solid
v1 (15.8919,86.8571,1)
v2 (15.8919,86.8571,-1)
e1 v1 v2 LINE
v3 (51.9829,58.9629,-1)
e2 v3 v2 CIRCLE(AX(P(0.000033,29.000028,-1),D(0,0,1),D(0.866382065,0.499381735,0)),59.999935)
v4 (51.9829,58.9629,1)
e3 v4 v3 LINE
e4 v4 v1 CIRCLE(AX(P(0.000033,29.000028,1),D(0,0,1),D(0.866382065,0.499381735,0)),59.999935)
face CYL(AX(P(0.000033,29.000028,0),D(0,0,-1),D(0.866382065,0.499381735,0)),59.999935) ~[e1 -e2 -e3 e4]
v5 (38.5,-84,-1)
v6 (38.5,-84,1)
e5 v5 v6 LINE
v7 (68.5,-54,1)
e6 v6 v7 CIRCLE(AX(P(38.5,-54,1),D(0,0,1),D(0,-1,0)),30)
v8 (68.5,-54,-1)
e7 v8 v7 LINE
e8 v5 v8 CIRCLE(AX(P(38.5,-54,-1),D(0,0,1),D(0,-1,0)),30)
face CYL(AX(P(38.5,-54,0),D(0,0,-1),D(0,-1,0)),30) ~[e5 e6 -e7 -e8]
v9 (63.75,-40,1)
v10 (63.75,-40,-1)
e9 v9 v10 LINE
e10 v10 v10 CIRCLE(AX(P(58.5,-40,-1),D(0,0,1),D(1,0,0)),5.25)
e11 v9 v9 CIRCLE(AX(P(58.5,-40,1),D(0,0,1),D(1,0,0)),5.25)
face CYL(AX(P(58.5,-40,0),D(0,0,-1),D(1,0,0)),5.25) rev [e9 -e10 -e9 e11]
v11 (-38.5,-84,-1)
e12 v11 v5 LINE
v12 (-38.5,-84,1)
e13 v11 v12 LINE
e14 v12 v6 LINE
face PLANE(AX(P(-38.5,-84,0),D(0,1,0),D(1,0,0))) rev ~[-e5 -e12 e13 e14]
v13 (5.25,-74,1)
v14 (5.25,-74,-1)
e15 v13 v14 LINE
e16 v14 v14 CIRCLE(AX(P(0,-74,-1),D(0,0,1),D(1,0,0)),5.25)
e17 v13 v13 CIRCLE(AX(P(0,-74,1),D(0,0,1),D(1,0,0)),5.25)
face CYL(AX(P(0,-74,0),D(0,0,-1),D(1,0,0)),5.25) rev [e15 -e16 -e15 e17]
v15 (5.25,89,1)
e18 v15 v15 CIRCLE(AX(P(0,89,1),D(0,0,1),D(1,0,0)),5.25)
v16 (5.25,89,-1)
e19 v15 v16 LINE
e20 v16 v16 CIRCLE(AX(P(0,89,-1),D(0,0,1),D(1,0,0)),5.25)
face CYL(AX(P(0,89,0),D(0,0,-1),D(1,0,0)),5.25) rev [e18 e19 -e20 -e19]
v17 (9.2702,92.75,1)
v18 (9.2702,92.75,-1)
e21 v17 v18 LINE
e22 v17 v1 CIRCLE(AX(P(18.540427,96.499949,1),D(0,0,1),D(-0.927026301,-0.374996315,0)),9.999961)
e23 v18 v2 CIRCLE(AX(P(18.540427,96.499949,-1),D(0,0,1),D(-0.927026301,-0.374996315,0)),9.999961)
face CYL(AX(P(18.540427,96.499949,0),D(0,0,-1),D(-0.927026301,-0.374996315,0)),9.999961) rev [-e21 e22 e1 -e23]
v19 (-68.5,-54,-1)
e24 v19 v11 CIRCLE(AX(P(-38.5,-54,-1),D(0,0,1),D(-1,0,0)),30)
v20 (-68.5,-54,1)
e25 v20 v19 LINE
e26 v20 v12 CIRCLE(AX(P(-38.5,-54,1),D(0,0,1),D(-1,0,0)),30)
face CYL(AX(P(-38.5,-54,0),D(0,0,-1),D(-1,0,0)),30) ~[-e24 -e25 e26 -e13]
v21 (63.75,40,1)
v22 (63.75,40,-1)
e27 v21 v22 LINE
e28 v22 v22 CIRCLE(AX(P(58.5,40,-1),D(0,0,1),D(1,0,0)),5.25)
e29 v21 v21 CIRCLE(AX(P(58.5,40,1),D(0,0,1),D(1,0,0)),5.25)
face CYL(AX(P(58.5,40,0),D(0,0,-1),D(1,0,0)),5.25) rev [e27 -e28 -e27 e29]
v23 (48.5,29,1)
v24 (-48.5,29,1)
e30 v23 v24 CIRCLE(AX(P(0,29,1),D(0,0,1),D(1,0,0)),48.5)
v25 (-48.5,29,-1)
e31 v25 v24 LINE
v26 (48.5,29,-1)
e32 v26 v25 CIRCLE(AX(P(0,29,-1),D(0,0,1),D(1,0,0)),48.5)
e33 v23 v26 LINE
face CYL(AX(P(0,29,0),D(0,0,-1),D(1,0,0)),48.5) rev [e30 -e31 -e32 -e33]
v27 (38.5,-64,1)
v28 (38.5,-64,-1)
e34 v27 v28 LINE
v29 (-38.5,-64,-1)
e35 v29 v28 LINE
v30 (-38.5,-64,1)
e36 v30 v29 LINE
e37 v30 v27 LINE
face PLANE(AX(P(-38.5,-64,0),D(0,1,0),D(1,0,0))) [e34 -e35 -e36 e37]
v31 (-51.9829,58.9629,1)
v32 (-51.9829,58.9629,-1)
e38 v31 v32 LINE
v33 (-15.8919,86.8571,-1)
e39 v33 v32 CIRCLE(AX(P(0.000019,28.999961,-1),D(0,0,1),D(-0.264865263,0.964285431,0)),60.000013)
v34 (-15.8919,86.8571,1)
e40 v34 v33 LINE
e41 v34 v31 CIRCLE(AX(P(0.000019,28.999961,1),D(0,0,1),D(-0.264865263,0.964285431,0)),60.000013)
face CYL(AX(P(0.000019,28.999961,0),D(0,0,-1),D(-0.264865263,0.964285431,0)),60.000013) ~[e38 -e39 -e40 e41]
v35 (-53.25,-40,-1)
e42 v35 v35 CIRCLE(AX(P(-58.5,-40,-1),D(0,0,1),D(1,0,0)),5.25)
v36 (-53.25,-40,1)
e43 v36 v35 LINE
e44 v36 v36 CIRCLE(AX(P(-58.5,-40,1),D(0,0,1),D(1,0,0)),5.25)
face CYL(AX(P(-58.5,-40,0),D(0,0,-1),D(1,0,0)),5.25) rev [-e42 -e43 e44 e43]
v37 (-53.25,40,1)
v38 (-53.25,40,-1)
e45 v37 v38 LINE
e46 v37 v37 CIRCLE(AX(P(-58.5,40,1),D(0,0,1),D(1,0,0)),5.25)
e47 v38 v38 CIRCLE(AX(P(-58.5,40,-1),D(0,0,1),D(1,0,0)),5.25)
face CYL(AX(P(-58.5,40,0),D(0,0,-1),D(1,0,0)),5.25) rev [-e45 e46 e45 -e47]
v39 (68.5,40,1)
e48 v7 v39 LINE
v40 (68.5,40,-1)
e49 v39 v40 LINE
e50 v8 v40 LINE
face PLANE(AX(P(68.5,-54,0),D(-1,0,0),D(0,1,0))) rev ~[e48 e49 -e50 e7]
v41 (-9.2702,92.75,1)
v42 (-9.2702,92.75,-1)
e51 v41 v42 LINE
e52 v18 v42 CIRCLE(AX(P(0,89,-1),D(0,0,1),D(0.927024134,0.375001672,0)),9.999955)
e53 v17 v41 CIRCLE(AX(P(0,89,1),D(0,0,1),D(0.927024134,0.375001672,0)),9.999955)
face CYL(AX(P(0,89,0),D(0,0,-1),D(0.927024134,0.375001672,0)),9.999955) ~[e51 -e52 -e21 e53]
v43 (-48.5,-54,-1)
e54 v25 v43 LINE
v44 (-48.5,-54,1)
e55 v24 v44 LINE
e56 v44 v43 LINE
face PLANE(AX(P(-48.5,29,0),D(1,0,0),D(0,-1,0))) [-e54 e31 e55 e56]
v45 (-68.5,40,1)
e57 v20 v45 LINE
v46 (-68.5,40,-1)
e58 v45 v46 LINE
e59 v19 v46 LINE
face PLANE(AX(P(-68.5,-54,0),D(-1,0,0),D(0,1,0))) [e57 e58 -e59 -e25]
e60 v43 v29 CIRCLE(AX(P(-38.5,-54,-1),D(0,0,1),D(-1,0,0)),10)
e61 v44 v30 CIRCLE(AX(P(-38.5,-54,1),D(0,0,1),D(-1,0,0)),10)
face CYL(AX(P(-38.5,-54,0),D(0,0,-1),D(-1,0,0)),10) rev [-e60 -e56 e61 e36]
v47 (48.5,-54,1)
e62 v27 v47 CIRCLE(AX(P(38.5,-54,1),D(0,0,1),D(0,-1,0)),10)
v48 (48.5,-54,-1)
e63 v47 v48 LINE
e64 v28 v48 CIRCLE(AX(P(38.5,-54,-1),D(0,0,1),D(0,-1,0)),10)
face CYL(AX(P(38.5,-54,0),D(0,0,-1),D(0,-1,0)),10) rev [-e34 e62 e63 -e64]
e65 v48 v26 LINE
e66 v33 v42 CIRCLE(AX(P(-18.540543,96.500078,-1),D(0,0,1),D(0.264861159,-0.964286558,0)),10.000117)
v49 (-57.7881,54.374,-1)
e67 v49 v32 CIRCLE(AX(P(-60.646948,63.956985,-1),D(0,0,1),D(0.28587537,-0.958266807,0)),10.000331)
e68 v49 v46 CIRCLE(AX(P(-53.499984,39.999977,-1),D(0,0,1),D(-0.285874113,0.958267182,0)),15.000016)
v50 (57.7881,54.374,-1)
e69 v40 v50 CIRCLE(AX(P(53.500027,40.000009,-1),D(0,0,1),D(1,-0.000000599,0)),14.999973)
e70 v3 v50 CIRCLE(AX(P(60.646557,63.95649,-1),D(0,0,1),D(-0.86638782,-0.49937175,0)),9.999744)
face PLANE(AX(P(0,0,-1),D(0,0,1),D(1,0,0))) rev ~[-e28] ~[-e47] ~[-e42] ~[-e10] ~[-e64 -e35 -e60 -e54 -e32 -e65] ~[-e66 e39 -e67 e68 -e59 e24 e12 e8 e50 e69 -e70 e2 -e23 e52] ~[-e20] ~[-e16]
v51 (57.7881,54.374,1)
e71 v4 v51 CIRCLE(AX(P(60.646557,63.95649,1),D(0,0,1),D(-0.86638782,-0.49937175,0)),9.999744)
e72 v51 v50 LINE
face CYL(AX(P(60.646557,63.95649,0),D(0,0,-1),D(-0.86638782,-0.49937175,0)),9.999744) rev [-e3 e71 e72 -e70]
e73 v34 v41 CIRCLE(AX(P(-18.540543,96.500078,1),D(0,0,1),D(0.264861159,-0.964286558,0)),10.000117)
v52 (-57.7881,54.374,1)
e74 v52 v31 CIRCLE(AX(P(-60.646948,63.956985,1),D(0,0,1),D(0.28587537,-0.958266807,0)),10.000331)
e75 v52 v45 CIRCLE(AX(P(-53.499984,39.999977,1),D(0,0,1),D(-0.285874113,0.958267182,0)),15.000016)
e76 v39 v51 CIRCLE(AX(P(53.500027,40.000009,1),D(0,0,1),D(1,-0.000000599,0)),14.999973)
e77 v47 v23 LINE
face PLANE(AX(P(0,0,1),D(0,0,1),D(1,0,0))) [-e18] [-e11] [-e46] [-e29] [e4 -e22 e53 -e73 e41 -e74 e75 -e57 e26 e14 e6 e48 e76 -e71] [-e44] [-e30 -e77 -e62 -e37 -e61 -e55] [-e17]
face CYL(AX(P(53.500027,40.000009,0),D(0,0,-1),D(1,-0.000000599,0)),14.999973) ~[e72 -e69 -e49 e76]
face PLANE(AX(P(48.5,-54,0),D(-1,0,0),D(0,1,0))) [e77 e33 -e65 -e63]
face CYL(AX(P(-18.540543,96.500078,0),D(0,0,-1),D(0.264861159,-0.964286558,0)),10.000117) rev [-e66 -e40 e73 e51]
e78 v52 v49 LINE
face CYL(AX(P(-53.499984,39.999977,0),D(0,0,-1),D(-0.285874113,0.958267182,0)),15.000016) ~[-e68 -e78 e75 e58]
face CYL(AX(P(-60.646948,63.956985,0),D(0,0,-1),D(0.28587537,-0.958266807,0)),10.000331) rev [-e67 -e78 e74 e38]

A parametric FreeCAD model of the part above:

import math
import FreeCAD as App
import Part
import Sketcher

V = App.Vector

doc = App.newDocument("Part")
body = doc.addObject("PartDesign::Body", "Body")

sketch1 = body.newObject("Sketcher::SketchObject", "Sketch")
sketch1.AttachmentSupport = (doc.getObject("XY_Plane"), [""])
sketch1.MapMode = "FlatFace"
sketch1.addGeometry([
    Part.ArcOfCircle(Part.Circle(V(-38, -54, 0), V(0, 0, 1), 30), math.radians(180), math.radians(270)),
    Part.LineSegment(V(-38, -84, 0), V(38, -84, 0)),
    Part.ArcOfCircle(Part.Circle(V(38, -54, 0), V(0, 0, 1), 30), math.radians(-90), math.radians(0)),
    Part.LineSegment(V(68, -54, 0), V(68, 40, 0)),
    Part.ArcOfCircle(Part.Circle(V(54, 40, 0), V(0, 0, 1), 15), math.radians(0), math.radians(73)),
    Part.ArcOfCircle(Part.Circle(V(61, 64, 0), V(0, 0, 1), 10), math.radians(-150), math.radians(-107)),
    Part.ArcOfCircle(Part.Circle(V(0, 29, 0), V(0, 0, 1), 60), math.radians(30), math.radians(75)),
    Part.ArcOfCircle(Part.Circle(V(19, 96, 0), V(0, 0, 1), 10), math.radians(-158), math.radians(-105)),
    Part.ArcOfCircle(Part.Circle(V(0, 89, 0), V(0, 0, 1), 10), math.radians(22), math.radians(158)),
    Part.ArcOfCircle(Part.Circle(V(-19, 96, 0), V(0, 0, 1), 10), math.radians(-75), math.radians(-22)),
    Part.ArcOfCircle(Part.Circle(V(0, 29, 0), V(0, 0, 1), 60), math.radians(105), math.radians(150)),
    Part.ArcOfCircle(Part.Circle(V(-61, 64, 0), V(0, 0, 1), 10), math.radians(-73), math.radians(-30)),
    Part.ArcOfCircle(Part.Circle(V(-54, 40, 0), V(0, 0, 1), 15), math.radians(107), math.radians(180)),
    Part.LineSegment(V(-68, 40, 0), V(-68, -54, 0)),
    Part.Circle(V(-58, -40, 0), V(0, 0, 1), 5),
    Part.Circle(V(0, -74, 0), V(0, 0, 1), 5),
    Part.LineSegment(V(-48, -54, 0), V(-48, 29, 0)),
    Part.ArcOfCircle(Part.Circle(V(0, 29, 0), V(0, 0, 1), 48), math.radians(0), math.radians(180)),
    Part.LineSegment(V(48, 29, 0), V(48, -54, 0)),
    Part.ArcOfCircle(Part.Circle(V(38, -54, 0), V(0, 0, 1), 10), math.radians(-90), math.radians(0)),
    Part.LineSegment(V(38, -64, 0), V(-38, -64, 0)),
    Part.ArcOfCircle(Part.Circle(V(-38, -54, 0), V(0, 0, 1), 10), math.radians(180), math.radians(270)),
    Part.Circle(V(58, -40, 0), V(0, 0, 1), 5),
    Part.Circle(V(-58, 40, 0), V(0, 0, 1), 5),
    Part.Circle(V(0, 89, 0), V(0, 0, 1), 5),
    Part.Circle(V(58, 40, 0), V(0, 0, 1), 5),
], False)
sketch1.addConstraint([
    Sketcher.Constraint("Tangent", 0, 2, 1, 1),
    Sketcher.Constraint("Tangent", 1, 2, 2, 1),
    Sketcher.Constraint("Tangent", 2, 2, 3, 1),
    Sketcher.Constraint("Tangent", 3, 2, 4, 1),
    Sketcher.Constraint("Tangent", 4, 2, 5, 2),
    Sketcher.Constraint("Tangent", 5, 1, 6, 1),
    Sketcher.Constraint("Tangent", 6, 2, 7, 2),
    Sketcher.Constraint("Tangent", 7, 1, 8, 1),
    Sketcher.Constraint("Tangent", 8, 2, 9, 2),
    Sketcher.Constraint("Tangent", 9, 1, 10, 1),
    Sketcher.Constraint("Tangent", 10, 2, 11, 2),
    Sketcher.Constraint("Tangent", 11, 1, 12, 1),
    Sketcher.Constraint("Tangent", 12, 2, 13, 1),
    Sketcher.Constraint("Tangent", 13, 2, 0, 1),
    Sketcher.Constraint("Tangent", 16, 2, 17, 2),
    Sketcher.Constraint("Tangent", 17, 1, 18, 1),
    Sketcher.Constraint("Tangent", 18, 2, 19, 2),
    Sketcher.Constraint("Tangent", 19, 1, 20, 1),
    Sketcher.Constraint("Tangent", 20, 2, 21, 2),
    Sketcher.Constraint("Tangent", 21, 1, 16, 1),
    Sketcher.Constraint("Horizontal", 1),
    Sketcher.Constraint("Vertical", 3),
    Sketcher.Constraint("Vertical", 13),
    Sketcher.Constraint("Vertical", 16),
    Sketcher.Constraint("Vertical", 18),
    Sketcher.Constraint("Horizontal", 20),
    Sketcher.Constraint("Coincident", 10, 3, 6, 3),
    Sketcher.Constraint("Coincident", 17, 3, 6, 3),
    Sketcher.Constraint("Coincident", 19, 3, 2, 3),
    Sketcher.Constraint("Coincident", 21, 3, 0, 3),
    Sketcher.Constraint("Coincident", 24, 3, 8, 3),
    Sketcher.Constraint("Equal", 0, 2),
    Sketcher.Constraint("Equal", 5, 7),
    Sketcher.Constraint("Equal", 7, 8),
    Sketcher.Constraint("Equal", 8, 9),
    Sketcher.Constraint("Equal", 6, 10),
    Sketcher.Constraint("Equal", 9, 11),
    Sketcher.Constraint("Equal", 4, 12),
    Sketcher.Constraint("Equal", 14, 15),
    Sketcher.Constraint("Equal", 11, 19),
    Sketcher.Constraint("Equal", 15, 22),
    Sketcher.Constraint("Equal", 22, 23),
    Sketcher.Constraint("Equal", 23, 24),
    Sketcher.Constraint("Equal", 24, 25),
    Sketcher.Constraint("Symmetric", 22, 3, 23, 3, -1, 1),
    Sketcher.Constraint("Symmetric", 14, 3, 25, 3, -1, 1),
    Sketcher.Constraint("Symmetric", 7, 3, 9, 3, -2),
    Sketcher.Constraint("Symmetric", 14, 3, 22, 3, -2),
    Sketcher.Constraint("PointOnObject", 15, 3, -2),
    Sketcher.Constraint("Horizontal", 5, 3, 11, 3),
    Sketcher.Constraint("Horizontal", 12, 3, 23, 3),
    Sketcher.Constraint("Radius", 0, 30.0),
    Sketcher.Constraint("Radius", 4, 15.0),
    Sketcher.Constraint("Radius", 5, 10.0),
    Sketcher.Constraint("Radius", 6, 60.0),
    Sketcher.Constraint("Diameter", 14, 10.5),
    Sketcher.Constraint("Radius", 17, 48.5),
    Sketcher.Constraint("DistanceY", -1, 1, 4, 3, 40.0),
    Sketcher.Constraint("DistanceY", -1, 1, 6, 3, 29.0),
    Sketcher.Constraint("DistanceY", 15, 3, -1, 1, 74.0),
    Sketcher.Constraint("DistanceY", 6, 3, 8, 3, 60.0),
    Sketcher.Constraint("DistanceX", 14, 3, 0, 3, 20.0),
    Sketcher.Constraint("DistanceY", 15, 3, 0, 3, 20.0),
])
pad1 = body.newObject("PartDesign::Pad", "Pad")
pad1.Profile = sketch1
pad1.Length = 2
pad1.Midplane = True

doc.recompute()
